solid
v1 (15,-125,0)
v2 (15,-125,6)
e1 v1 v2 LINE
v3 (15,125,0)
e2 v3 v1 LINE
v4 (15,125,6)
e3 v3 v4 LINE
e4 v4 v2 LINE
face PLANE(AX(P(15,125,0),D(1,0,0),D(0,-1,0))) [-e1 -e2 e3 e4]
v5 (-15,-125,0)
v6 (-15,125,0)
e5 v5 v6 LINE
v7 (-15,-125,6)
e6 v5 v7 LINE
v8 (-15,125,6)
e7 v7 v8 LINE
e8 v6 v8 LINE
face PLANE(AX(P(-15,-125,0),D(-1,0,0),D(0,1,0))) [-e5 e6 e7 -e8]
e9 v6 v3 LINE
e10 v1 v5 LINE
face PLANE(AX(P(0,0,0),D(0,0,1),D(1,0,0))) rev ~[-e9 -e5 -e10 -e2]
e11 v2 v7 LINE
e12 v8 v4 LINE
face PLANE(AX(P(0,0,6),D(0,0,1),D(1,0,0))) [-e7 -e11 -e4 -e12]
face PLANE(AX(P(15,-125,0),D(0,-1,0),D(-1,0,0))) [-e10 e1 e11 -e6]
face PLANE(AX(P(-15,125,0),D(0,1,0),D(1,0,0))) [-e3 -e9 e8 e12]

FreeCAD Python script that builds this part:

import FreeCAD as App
import Part
import Sketcher
Q = App.Units.Quantity

doc = App.newDocument("Part")
body = doc.addObject("PartDesign::Body", "Body")

# Sketch on XY plane
sketch1 = doc.addObject("Sketcher::SketchObject", "Sketch")
body.addObject(sketch1)
sketch1.AttachmentSupport = (doc.XY_Plane, [""])
sketch1.MapMode = "FlatFace"
sketch1.addGeometry(Part.LineSegment(App.Vector(-15, -125, 0), App.Vector(15, -125, 0)), False)
sketch1.addGeometry(Part.LineSegment(App.Vector(15, -125, 0), App.Vector(15, 125, 0)), False)
sketch1.addGeometry(Part.LineSegment(App.Vector(15, 125, 0), App.Vector(-15, 125, 0)), False)
sketch1.addGeometry(Part.LineSegment(App.Vector(-15, 125, 0), App.Vector(-15, -125, 0)), False)
sketch1.addConstraint(Sketcher.Constraint("Coincident", 0, 2, 1, 1))
sketch1.addConstraint(Sketcher.Constraint("Coincident", 1, 2, 2, 1))
sketch1.addConstraint(Sketcher.Constraint("Coincident", 2, 2, 3, 1))
sketch1.addConstraint(Sketcher.Constraint("Coincident", 3, 2, 0, 1))
sketch1.addConstraint(Sketcher.Constraint("Horizontal", 0))
sketch1.addConstraint(Sketcher.Constraint("Vertical", 1))
sketch1.addConstraint(Sketcher.Constraint("Horizontal", 2))
sketch1.addConstraint(Sketcher.Constraint("Vertical", 3))
sketch1.addConstraint(Sketcher.Constraint("Symmetric", 0, 2, 2, 2, -1, 1))
sketch1.addConstraint(Sketcher.Constraint("DistanceX", 0, 1, 0, 2, Q("30 mm")))
sketch1.addConstraint(Sketcher.Constraint("DistanceY", 1, 1, 1, 2, Q("250 mm")))
pad1 = doc.addObject("PartDesign::Pad", "Pad")
body.addObject(pad1)
pad1.Profile = sketch1
pad1.Length = 6

doc.recompute()
